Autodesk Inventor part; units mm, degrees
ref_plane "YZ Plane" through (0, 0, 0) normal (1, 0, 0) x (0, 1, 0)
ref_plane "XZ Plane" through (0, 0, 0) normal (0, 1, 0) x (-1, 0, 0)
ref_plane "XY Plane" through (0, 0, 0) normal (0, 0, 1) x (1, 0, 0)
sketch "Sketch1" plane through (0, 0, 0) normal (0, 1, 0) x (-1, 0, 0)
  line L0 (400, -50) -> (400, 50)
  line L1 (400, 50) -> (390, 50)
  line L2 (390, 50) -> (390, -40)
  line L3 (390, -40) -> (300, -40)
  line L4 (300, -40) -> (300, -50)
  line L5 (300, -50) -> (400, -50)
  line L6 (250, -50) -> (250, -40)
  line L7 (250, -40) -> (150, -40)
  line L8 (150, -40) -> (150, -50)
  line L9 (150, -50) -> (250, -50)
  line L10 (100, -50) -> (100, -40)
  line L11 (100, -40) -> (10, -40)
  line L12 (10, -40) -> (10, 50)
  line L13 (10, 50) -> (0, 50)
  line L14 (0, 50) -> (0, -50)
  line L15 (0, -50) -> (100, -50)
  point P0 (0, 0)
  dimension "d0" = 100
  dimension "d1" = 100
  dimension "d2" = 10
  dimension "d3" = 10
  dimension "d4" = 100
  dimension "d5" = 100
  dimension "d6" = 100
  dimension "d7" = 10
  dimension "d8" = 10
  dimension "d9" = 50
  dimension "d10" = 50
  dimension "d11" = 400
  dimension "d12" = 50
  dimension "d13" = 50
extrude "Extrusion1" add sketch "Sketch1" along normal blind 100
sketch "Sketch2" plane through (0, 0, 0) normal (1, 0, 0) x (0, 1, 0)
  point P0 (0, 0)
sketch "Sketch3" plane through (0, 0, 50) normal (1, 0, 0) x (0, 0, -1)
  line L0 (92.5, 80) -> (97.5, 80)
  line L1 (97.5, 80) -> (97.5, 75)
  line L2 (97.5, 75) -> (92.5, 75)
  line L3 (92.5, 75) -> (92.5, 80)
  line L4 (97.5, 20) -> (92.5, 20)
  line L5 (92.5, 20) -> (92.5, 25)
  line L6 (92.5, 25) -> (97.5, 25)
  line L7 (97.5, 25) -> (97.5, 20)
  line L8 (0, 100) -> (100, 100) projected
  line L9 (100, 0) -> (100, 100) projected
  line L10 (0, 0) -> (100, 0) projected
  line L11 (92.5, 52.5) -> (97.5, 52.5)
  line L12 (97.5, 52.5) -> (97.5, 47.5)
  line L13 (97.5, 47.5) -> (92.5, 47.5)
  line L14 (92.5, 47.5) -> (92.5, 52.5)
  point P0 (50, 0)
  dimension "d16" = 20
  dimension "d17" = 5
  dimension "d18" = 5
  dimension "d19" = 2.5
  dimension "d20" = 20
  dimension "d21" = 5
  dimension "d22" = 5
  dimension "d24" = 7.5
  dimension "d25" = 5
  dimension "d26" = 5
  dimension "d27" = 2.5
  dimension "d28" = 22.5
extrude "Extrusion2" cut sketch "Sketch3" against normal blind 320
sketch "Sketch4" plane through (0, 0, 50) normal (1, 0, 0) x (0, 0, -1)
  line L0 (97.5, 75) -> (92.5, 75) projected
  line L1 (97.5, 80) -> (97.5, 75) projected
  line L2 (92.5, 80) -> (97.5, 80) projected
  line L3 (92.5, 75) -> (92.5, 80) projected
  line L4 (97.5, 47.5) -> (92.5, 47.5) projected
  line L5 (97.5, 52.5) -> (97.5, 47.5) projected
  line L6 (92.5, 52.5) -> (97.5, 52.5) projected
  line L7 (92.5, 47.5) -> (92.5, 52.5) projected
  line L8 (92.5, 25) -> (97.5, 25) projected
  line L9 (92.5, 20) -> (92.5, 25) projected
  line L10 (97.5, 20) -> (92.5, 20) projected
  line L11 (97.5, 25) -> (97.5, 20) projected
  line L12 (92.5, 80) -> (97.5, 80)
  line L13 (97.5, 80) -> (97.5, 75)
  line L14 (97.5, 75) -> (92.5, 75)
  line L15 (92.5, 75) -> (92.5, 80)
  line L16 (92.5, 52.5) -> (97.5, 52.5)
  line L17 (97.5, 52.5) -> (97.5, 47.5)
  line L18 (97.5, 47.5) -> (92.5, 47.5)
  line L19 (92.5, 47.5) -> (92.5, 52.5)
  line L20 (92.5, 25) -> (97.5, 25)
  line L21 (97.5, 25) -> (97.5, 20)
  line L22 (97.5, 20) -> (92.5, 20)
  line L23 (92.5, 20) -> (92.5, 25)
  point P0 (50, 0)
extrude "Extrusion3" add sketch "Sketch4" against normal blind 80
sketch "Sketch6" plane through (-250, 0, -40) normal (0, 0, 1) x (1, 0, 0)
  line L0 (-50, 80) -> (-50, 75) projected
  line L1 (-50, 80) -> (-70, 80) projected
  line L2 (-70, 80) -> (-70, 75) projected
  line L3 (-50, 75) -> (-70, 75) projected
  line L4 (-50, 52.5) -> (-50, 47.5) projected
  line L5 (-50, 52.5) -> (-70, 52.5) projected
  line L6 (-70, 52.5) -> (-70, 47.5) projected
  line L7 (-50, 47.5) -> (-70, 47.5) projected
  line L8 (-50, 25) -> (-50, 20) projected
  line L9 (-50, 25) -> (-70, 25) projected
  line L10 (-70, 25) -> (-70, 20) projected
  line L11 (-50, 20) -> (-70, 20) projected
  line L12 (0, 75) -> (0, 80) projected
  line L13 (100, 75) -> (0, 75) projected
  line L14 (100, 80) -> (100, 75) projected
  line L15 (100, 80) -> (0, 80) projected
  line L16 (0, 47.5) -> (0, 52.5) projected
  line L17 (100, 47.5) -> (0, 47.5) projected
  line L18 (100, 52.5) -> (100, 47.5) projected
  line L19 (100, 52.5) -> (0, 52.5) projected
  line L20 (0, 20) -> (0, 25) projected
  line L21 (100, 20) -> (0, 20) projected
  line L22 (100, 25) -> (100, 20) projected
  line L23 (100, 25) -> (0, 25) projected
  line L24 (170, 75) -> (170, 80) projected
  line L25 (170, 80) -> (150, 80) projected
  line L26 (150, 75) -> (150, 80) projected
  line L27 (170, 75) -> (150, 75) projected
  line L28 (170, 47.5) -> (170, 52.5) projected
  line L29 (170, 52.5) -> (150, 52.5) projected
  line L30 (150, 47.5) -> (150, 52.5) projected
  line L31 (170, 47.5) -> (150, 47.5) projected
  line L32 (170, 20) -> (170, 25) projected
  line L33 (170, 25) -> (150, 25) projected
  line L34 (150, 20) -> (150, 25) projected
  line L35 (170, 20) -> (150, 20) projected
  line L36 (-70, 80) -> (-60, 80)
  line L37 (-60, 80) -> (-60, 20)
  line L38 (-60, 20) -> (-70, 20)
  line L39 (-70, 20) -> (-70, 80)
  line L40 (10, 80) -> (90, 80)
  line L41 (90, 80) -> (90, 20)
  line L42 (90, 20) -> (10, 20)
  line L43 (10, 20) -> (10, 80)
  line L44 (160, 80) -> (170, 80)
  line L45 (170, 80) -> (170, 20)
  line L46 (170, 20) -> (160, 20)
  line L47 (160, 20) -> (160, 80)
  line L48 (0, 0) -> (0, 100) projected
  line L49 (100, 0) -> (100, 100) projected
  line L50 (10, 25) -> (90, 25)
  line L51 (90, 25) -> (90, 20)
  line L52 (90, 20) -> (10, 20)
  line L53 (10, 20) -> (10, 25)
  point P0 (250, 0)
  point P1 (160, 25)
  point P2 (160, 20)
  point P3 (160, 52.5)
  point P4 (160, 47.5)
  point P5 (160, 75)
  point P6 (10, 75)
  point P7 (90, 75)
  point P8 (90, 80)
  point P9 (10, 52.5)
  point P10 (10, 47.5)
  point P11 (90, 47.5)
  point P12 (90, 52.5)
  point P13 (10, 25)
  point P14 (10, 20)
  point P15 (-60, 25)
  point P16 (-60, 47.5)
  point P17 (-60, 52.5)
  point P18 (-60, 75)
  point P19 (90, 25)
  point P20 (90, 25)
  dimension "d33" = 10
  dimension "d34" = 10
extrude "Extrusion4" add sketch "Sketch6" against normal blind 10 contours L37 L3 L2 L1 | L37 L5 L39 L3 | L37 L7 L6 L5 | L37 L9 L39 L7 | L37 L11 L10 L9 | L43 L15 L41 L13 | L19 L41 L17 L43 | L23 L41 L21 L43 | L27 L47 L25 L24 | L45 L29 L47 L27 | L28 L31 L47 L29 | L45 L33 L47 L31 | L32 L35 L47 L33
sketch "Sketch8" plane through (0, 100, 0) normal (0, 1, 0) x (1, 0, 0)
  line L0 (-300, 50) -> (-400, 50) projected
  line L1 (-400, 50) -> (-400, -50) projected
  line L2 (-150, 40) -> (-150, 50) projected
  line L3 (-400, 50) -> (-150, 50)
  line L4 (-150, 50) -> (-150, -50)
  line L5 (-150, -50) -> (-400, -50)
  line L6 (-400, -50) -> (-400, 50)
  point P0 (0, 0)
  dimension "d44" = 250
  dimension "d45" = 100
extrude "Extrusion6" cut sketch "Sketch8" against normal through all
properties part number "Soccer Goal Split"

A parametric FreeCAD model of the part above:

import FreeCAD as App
import Part
import Sketcher
from FreeCAD import Vector
Q = App.Units.Quantity


def add_polygon(sketch, points):
    """Adds a closed chain of lines whose ends are joined by coincident constraints."""
    first, n = sketch.GeometryCount, len(points)
    for a, b in zip(points, points[1:] + points[:1]):
        sketch.addGeometry(Part.LineSegment(App.Vector(*a, 0), App.Vector(*b, 0)), False)
    for i in range(n):
        sketch.addConstraint(Sketcher.Constraint("Coincident", first + i, 2, first + (i + 1) % n, 1))

doc = App.newDocument("Part")
body = doc.addObject("PartDesign::Body", "Body")
body.AllowCompound = True

sketch1 = body.newObject("Sketcher::SketchObject", "Sketch")
sketch1.AttachmentSupport = (doc.getObject("XZ_Plane"), [""])
sketch1.MapMode = "FlatFace"
add_polygon(sketch1, [(-300, -50), (-400, -50), (-400, 50), (-390, 50), (-390, -40), (-300, -40)])
add_polygon(sketch1, [(-150, -50), (-250, -50), (-250, -40), (-150, -40)])
add_polygon(sketch1, [(0, -50), (-100, -50), (-100, -40), (-10, -40), (-10, 50), (0, 50)])
sketch1.addConstraint(Sketcher.Constraint("Horizontal", 0))
sketch1.addConstraint(Sketcher.Constraint("Vertical", 1))
sketch1.addConstraint(Sketcher.Constraint("Horizontal", 2))
sketch1.addConstraint(Sketcher.Constraint("Vertical", 3))
sketch1.addConstraint(Sketcher.Constraint("Horizontal", 4))
sketch1.addConstraint(Sketcher.Constraint("Vertical", 5))
sketch1.addConstraint(Sketcher.Constraint("Horizontal", 6))
sketch1.addConstraint(Sketcher.Constraint("Vertical", 7))
sketch1.addConstraint(Sketcher.Constraint("Horizontal", 8))
sketch1.addConstraint(Sketcher.Constraint("Vertical", 9))
sketch1.addConstraint(Sketcher.Constraint("Horizontal", 10))
sketch1.addConstraint(Sketcher.Constraint("Vertical", 11))
sketch1.addConstraint(Sketcher.Constraint("Horizontal", 12))
sketch1.addConstraint(Sketcher.Constraint("Vertical", 13))
sketch1.addConstraint(Sketcher.Constraint("Horizontal", 14))
sketch1.addConstraint(Sketcher.Constraint("Vertical", 15))
sketch1.addConstraint(Sketcher.Constraint("Symmetric", 14, 2, 15, 2, -1, 1))
sketch1.addConstraint(Sketcher.Constraint("Horizontal", 5, 2, 6, 2))
sketch1.addConstraint(Sketcher.Constraint("Horizontal", 4, 2, 7, 2))
sketch1.addConstraint(Sketcher.Constraint("Horizontal", 9, 2, 10, 2))
sketch1.addConstraint(Sketcher.Constraint("Horizontal", 8, 2, 11, 2))
sketch1.addConstraint(Sketcher.Constraint("Horizontal", 2, 2, 13, 2))
sketch1.addConstraint(Sketcher.Constraint("Equal", 0, 6))
sketch1.addConstraint(Sketcher.Constraint("Equal", 8, 10))
sketch1.addConstraint(Sketcher.Constraint("Equal", 4, 12))
sketch1.addConstraint(Sketcher.Constraint("Equal", 10, 1))
sketch1.addConstraint(Sketcher.Constraint("Equal", 12, 3))
sketch1.addConstraint(Sketcher.Constraint("DistanceX", 0, 2, 0, 1, Q("100 mm")))
sketch1.addConstraint(Sketcher.Constraint("DistanceX", 2, 1, 2, 2, Q("10 mm")))
sketch1.addConstraint(Sketcher.Constraint("DistanceX", 0, 2, -1, 1, Q("400 mm")))
sketch1.addConstraint(Sketcher.Constraint("DistanceX", 5, 2, 6, 2, Q("50 mm")))
pad1 = body.newObject("PartDesign::Pad", "Pad")
pad1.Profile = sketch1
pad1.Length = 100
pad1.Reversed = True

sketch2 = body.newObject("Sketcher::SketchObject", "Sketch001")
sketch2.AttachmentSupport = (doc.getObject("YZ_Plane"), [""])
sketch2.MapMode = "FlatFace"
add_polygon(sketch2, [(80, -48), (80, -42), (75, -42), (75, -48)])
add_polygon(sketch2, [(20, -42), (20, -48), (25, -48), (25, -42)])
add_polygon(sketch2, [(52, -48), (52, -42), (48, -42), (48, -48)])
sketch2.addConstraint(Sketcher.Constraint("Vertical", 0))
sketch2.addConstraint(Sketcher.Constraint("Horizontal", 1))
sketch2.addConstraint(Sketcher.Constraint("Vertical", 2))
sketch2.addConstraint(Sketcher.Constraint("Horizontal", 3))
sketch2.addConstraint(Sketcher.Constraint("Vertical", 4))
sketch2.addConstraint(Sketcher.Constraint("Horizontal", 5))
sketch2.addConstraint(Sketcher.Constraint("Vertical", 6))
sketch2.addConstraint(Sketcher.Constraint("Horizontal", 7))
sketch2.addConstraint(Sketcher.Constraint("Vertical", 8))
sketch2.addConstraint(Sketcher.Constraint("Horizontal", 9))
sketch2.addConstraint(Sketcher.Constraint("Vertical", 10))
sketch2.addConstraint(Sketcher.Constraint("Horizontal", 11))
sketch2.addConstraint(Sketcher.Constraint("Horizontal", 3, 2, 4, 2))
sketch2.addConstraint(Sketcher.Constraint("Horizontal", 1, 2, 6, 2))
sketch2.addConstraint(Sketcher.Constraint("Horizontal", 7, 2, 8, 2))
sketch2.addConstraint(Sketcher.Constraint("Horizontal", 5, 2, 10, 2))
sketch2.addConstraint(Sketcher.Constraint("Equal", 3, 5))
sketch2.addConstraint(Sketcher.Constraint("Equal", 7, 9))
sketch2.addConstraint(Sketcher.Constraint("Equal", 11, 0))
sketch2.addConstraint(Sketcher.Constraint("DistanceX", 1, 2, 1, 1, Q("5 mm")))
sketch2.addConstraint(Sketcher.Constraint("DistanceX", -1, 1, 4, 2, Q("20 mm")))
sketch2.addConstraint(Sketcher.Constraint("DistanceX", 8, 2, 1, 2, Q("22.5 mm")))
sketch2.addConstraint(Sketcher.Constraint("DistanceX", 6, 2, 9, 2, Q("22.5 mm")))
sketch2.addConstraint(Sketcher.Constraint("DistanceY", 0, 2, -1, 1, Q("42.5 mm")))
pocket1 = body.newObject("PartDesign::Pocket", "Pocket")
pocket1.Profile = sketch2
pocket1.Length = 320

sketch3 = body.newObject("Sketcher::SketchObject", "Sketch002")
sketch3.AttachmentSupport = (doc.getObject("YZ_Plane"), [""])
sketch3.MapMode = "FlatFace"
add_polygon(sketch3, [(75, -42), (75, -48), (80, -48), (80, -42)])
add_polygon(sketch3, [(48, -42), (48, -48), (52, -48), (52, -42)])
add_polygon(sketch3, [(25, -48), (25, -42), (20, -42), (20, -48)])
sketch3.addConstraint(Sketcher.Constraint("Vertical", 0))
sketch3.addConstraint(Sketcher.Constraint("Horizontal", 1))
sketch3.addConstraint(Sketcher.Constraint("Vertical", 2))
sketch3.addConstraint(Sketcher.Constraint("Horizontal", 3))
sketch3.addConstraint(Sketcher.Constraint("Vertical", 4))
sketch3.addConstraint(Sketcher.Constraint("Horizontal", 5))
sketch3.addConstraint(Sketcher.Constraint("Vertical", 6))
sketch3.addConstraint(Sketcher.Constraint("Horizontal", 7))
sketch3.addConstraint(Sketcher.Constraint("Vertical", 8))
sketch3.addConstraint(Sketcher.Constraint("Horizontal", 9))
sketch3.addConstraint(Sketcher.Constraint("Vertical", 10))
sketch3.addConstraint(Sketcher.Constraint("Horizontal", 11))
sketch3.addConstraint(Sketcher.Constraint("Horizontal", 1, 2, 4, 2))
sketch3.addConstraint(Sketcher.Constraint("Horizontal", 3, 2, 6, 2))
sketch3.addConstraint(Sketcher.Constraint("Horizontal", 7, 2, 8, 2))
sketch3.addConstraint(Sketcher.Constraint("Horizontal", 5, 2, 10, 2))
sketch3.addConstraint(Sketcher.Constraint("Equal", 3, 5))
sketch3.addConstraint(Sketcher.Constraint("Equal", 7, 9))
sketch3.addConstraint(Sketcher.Constraint("Equal", 11, 0))
sketch3.addConstraint(Sketcher.Constraint("DistanceX", 1, 1, 1, 2, Q("5 mm")))
sketch3.addConstraint(Sketcher.Constraint("DistanceX", -1, 1, 0, 2, Q("75 mm")))
sketch3.addConstraint(Sketcher.Constraint("DistanceX", -1, 1, 8, 2, Q("25 mm")))
sketch3.addConstraint(Sketcher.Constraint("DistanceY", 0, 2, -1, 1, Q("47.5 mm")))
sketch3.addConstraint(Sketcher.Constraint("DistanceX", -1, 1, 4, 2, Q("47.5 mm")))
pad2 = body.newObject("PartDesign::Pad", "Pad001")
pad2.Profile = sketch3
pad2.Length = 80
pad2.Reversed = True

sketch4 = body.newObject("Sketcher::SketchObject", "Sketch003")
sketch4.AttachmentSupport = (doc.getObject("XY_Plane"), [""])
sketch4.MapMode = "FlatFace"
sketch4.AttachmentOffset = App.Placement(Vector(0, 0, -40), App.Rotation())
add_polygon(sketch4, [(-310, 80), (-320, 80), (-320, 20), (-310, 20)])
add_polygon(sketch4, [(-240, 80), (-240, 75), (-160, 75), (-160, 80)])
add_polygon(sketch4, [(-160, 52), (-240, 52), (-240, 48), (-160, 48)])
add_polygon(sketch4, [(-160, 25), (-240, 25), (-240, 20), (-160, 20)])
add_polygon(sketch4, [(-90, 80), (-90, 20), (-80, 20), (-80, 80)])
sketch4.addConstraint(Sketcher.Constraint("Horizontal", 0))
sketch4.addConstraint(Sketcher.Constraint("Vertical", 1))
sketch4.addConstraint(Sketcher.Constraint("Horizontal", 2))
sketch4.addConstraint(Sketcher.Constraint("Vertical", 3))
sketch4.addConstraint(Sketcher.Constraint("Vertical", 4))
sketch4.addConstraint(Sketcher.Constraint("Horizontal", 5))
sketch4.addConstraint(Sketcher.Constraint("Vertical", 6))
sketch4.addConstraint(Sketcher.Constraint("Horizontal", 7))
sketch4.addConstraint(Sketcher.Constraint("Horizontal", 8))
sketch4.addConstraint(Sketcher.Constraint("Vertical", 9))
sketch4.addConstraint(Sketcher.Constraint("Horizontal", 10))
sketch4.addConstraint(Sketcher.Constraint("Vertical", 11))
sketch4.addConstraint(Sketcher.Constraint("Horizontal", 12))
sketch4.addConstraint(Sketcher.Constraint("Vertical", 13))
sketch4.addConstraint(Sketcher.Constraint("Horizontal", 14))
sketch4.addConstraint(Sketcher.Constraint("Vertical", 15))
sketch4.addConstraint(Sketcher.Constraint("Vertical", 16))
sketch4.addConstraint(Sketcher.Constraint("Horizontal", 17))
sketch4.addConstraint(Sketcher.Constraint("Vertical", 18))
sketch4.addConstraint(Sketcher.Constraint("Horizontal", 19))
sketch4.addConstraint(Sketcher.Constraint("Horizontal", 3, 2, 6, 2))
sketch4.addConstraint(Sketcher.Constraint("Horizontal", 2, 2, 13, 2))
sketch4.addConstraint(Sketcher.Constraint("Horizontal", 14, 2, 16, 2))
sketch4.addConstraint(Sketcher.Constraint("Horizontal", 7, 2, 18, 2))
sketch4.addConstraint(Sketcher.Constraint("Vertical", 7, 2, 8, 2))
sketch4.addConstraint(Sketcher.Constraint("Vertical", 6, 2, 10, 2))
sketch4.addConstraint(Sketcher.Constraint("Vertical", 9, 2, 12, 2))
sketch4.addConstraint(Sketcher.Constraint("Vertical", 11, 2, 14, 2))
sketch4.addConstraint(Sketcher.Constraint("Equal", 2, 17))
sketch4.addConstraint(Sketcher.Constraint("Equal", 6, 9))
sketch4.addConstraint(Sketcher.Constraint("Equal", 11, 13))
sketch4.addConstraint(Sketcher.Constraint("DistanceX", 0, 2, 0, 1, Q("10 mm")))
sketch4.addConstraint(Sketcher.Constraint("DistanceX", 5, 1, 5, 2, Q("80 mm")))
sketch4.addConstraint(Sketcher.Constraint("DistanceY", 1, 2, 1, 1, Q("60 mm")))
sketch4.addConstraint(Sketcher.Constraint("DistanceY", 4, 2, 4, 1, Q("5 mm")))
sketch4.addConstraint(Sketcher.Constraint("DistanceX", 0, 2, -1, 1, Q("320 mm")))
sketch4.addConstraint(Sketcher.Constraint("DistanceY", -1, 1, 0, 2, Q("80 mm")))
sketch4.addConstraint(Sketcher.Constraint("DistanceX", 4, 2, -1, 1, Q("240 mm")))
sketch4.addConstraint(Sketcher.Constraint("DistanceX", 16, 2, -1, 1, Q("90 mm")))
sketch4.addConstraint(Sketcher.Constraint("DistanceY", -1, 1, 8, 2, Q("52.5 mm")))
pad3 = body.newObject("PartDesign::Pad", "Pad002")
pad3.Profile = sketch4
pad3.Length = 10
pad3.Reversed = True

sketch5 = body.newObject("Sketcher::SketchObject", "Sketch004")
sketch5.AttachmentSupport = (doc.getObject("XZ_Plane"), [""])
sketch5.MapMode = "FlatFace"
sketch5.AttachmentOffset = App.Placement(Vector(0, 0, -100), App.Rotation())
add_polygon(sketch5, [(-150, -50), (-400, -50), (-400, 50), (-150, 50)])
sketch5.addConstraint(Sketcher.Constraint("Horizontal", 0))
sketch5.addConstraint(Sketcher.Constraint("Vertical", 1))
sketch5.addConstraint(Sketcher.Constraint("Horizontal", 2))
sketch5.addConstraint(Sketcher.Constraint("Vertical", 3))
sketch5.addConstraint(Sketcher.Constraint("DistanceX", 0, 2, 0, 1, Q("250 mm")))
sketch5.addConstraint(Sketcher.Constraint("DistanceY", 1, 1, 1, 2, Q("100 mm")))
sketch5.addConstraint(Sketcher.Constraint("DistanceX", 0, 2, -1, 1, Q("400 mm")))
sketch5.addConstraint(Sketcher.Constraint("DistanceY", 0, 2, -1, 1, Q("50 mm")))
pocket2 = body.newObject("PartDesign::Pocket", "Pocket001")
pocket2.Profile = sketch5
pocket2.Type = "ThroughAll"
pocket2.Reversed = True

doc.recompute()
